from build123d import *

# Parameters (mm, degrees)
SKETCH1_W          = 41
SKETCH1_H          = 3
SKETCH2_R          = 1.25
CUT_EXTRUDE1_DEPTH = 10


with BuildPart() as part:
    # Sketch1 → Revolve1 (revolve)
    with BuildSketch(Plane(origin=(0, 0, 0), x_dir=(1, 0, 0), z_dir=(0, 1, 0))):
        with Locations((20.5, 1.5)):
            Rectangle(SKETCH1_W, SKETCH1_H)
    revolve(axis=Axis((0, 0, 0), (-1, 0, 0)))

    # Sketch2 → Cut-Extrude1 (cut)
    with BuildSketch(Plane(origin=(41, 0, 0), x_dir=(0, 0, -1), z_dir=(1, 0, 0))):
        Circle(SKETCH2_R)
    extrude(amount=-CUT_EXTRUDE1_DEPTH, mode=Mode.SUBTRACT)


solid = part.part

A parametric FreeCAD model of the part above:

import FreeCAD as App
import Part
import Sketcher
from FreeCAD import Vector
Q = App.Units.Quantity


def add_polygon(sketch, points):
    """Adds a closed chain of lines whose ends are joined by coincident constraints."""
    first, n = sketch.GeometryCount, len(points)
    for a, b in zip(points, points[1:] + points[:1]):
        sketch.addGeometry(Part.LineSegment(App.Vector(*a, 0), App.Vector(*b, 0)), False)
    for i in range(n):
        sketch.addConstraint(Sketcher.Constraint("Coincident", first + i, 2, first + (i + 1) % n, 1))

doc = App.newDocument("Part")
params = doc.addObject("Spreadsheet::Sheet", "Params")
for row, (alias, value) in enumerate([
    ("sketch1_width", "41 mm"),
    ("sketch1_height", "3 mm"),
    ("revolution_angle", "360 deg"),
    ("sketch2_diameter", "2.5 mm"),
    ("pocket1_length", "10 mm"),
], start=1):
    params.set(f"A{row}", alias)
    params.set(f"B{row}", "=" + value)
    params.setAlias(f"B{row}", alias)

body = doc.addObject("PartDesign::Body", "Body")

# Sketch on XZ plane
sketch1 = body.newObject("Sketcher::SketchObject", "Sketch")
sketch1.AttachmentSupport = (doc.getObject("XZ_Plane"), [""])
sketch1.MapMode = "FlatFace"
add_polygon(sketch1, [(0, -3), (0, 0), (41, 0), (41, -3)])  # lines 0-3
sketch1.addConstraint([
    Sketcher.Constraint("Vertical", 0),
    Sketcher.Constraint("Horizontal", 1),
    Sketcher.Constraint("Vertical", 2),
    Sketcher.Constraint("Horizontal", 3),
    Sketcher.Constraint("Coincident", 0, 2, -1, 1),
    Sketcher.Constraint("DistanceX", 1, 1, 1, 2, Q("41 mm")),
    Sketcher.Constraint("DistanceY", 0, 1, 0, 2, Q("3 mm")),
])
sketch1.setExpression("Constraints[9]", "Params.sketch1_width")
sketch1.setExpression("Constraints[10]", "Params.sketch1_height")
revolution = body.newObject("PartDesign::Revolution", "Revolution")
revolution.Profile = sketch1
revolution.ReferenceAxis = (sketch1, ["H_Axis"])
revolution.setExpression("Angle", "Params.revolution_angle")

# Sketch on YZ plane
sketch2 = body.newObject("Sketcher::SketchObject", "Sketch001")
sketch2.AttachmentSupport = (doc.getObject("YZ_Plane"), [""])
sketch2.MapMode = "FlatFace"
sketch2.AttachmentOffset = App.Placement(Vector(0, 0, 41), App.Rotation())
sketch2.addGeometry(Part.Circle(Vector(0, 0, 0), Vector(0, 0, 1), 1.2), False)
sketch2.addConstraint([
    Sketcher.Constraint("Coincident", 0, 3, -1, 1),
    Sketcher.Constraint("Diameter", 0, Q("2.5 mm")),
])
sketch2.setExpression("Constraints[1]", "Params.sketch2_diameter")
pocket1 = body.newObject("PartDesign::Pocket", "Pocket")
pocket1.Profile = sketch2
pocket1.setExpression("Length", "Params.pocket1_length")

doc.recompute()
